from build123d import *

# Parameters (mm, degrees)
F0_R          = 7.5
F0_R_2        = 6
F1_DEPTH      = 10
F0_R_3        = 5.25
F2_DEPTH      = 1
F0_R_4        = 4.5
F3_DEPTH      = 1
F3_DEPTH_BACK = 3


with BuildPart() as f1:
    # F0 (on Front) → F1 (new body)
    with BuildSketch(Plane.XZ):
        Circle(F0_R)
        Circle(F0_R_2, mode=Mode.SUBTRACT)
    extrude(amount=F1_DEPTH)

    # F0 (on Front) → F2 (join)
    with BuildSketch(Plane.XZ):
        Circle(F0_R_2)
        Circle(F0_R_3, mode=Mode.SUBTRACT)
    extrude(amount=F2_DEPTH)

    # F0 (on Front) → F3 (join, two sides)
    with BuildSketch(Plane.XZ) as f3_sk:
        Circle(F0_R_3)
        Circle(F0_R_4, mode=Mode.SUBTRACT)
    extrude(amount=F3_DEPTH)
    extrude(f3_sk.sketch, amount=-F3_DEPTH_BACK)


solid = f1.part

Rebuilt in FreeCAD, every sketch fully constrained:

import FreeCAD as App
import Part
import Sketcher
from FreeCAD import Vector

doc = App.newDocument("Part")
params = doc.addObject("Spreadsheet::Sheet", "Params")
for row, (alias, value) in enumerate([
    ("sketch1_diameter", "15 mm"),
    ("sketch1_diameter2", "12 mm"),
    ("pad1_length", "10 mm"),
    ("sketch2_diameter", "12 mm"),
    ("sketch2_diameter2", "10.5 mm"),
    ("pad2_length", "1 mm"),
    ("sketch3_diameter", "9 mm"),
    ("sketch3_diameter2", "10.5 mm"),
    ("pad3_length", "1 mm"),
    ("pad3_length2", "3 mm"),
], start=1):
    params.set(f"A{row}", alias)
    params.set(f"B{row}", "=" + value)
    params.setAlias(f"B{row}", alias)

body = doc.addObject("PartDesign::Body", "Body")

# Sketch on XZ plane
sketch1 = doc.addObject("Sketcher::SketchObject", "Sketch")
body.addObject(sketch1)
sketch1.AttachmentSupport = (doc.XZ_Plane, [""])
sketch1.MapMode = "FlatFace"
sketch1.addGeometry(Part.Circle(Vector(0, 0, 0), Vector(0, 0, 1), 8), False)
sketch1.addGeometry(Part.Circle(Vector(0, 0, 0), Vector(0, 0, 1), 6), False)
sketch1.addConstraint(Sketcher.Constraint("Coincident", 0, 3, -1, 1))
sketch1.addConstraint(Sketcher.Constraint("Coincident", 1, 3, -1, 1))
sketch1.addConstraint(Sketcher.Constraint("Diameter", 0, 15.0))
sketch1.addConstraint(Sketcher.Constraint("Diameter", 1, 12.0))
sketch1.setExpression("Constraints[2]", "Params.sketch1_diameter")
sketch1.setExpression("Constraints[3]", "Params.sketch1_diameter2")
pad1 = doc.addObject("PartDesign::Pad", "Pad")
body.addObject(pad1)
pad1.Profile = sketch1
pad1.setExpression("Length", "Params.pad1_length")

# Sketch on XZ plane
sketch2 = doc.addObject("Sketcher::SketchObject", "Sketch001")
body.addObject(sketch2)
sketch2.AttachmentSupport = (doc.XZ_Plane, [""])
sketch2.MapMode = "FlatFace"
sketch2.addGeometry(Part.Circle(Vector(0, 0, 0), Vector(0, 0, 1), 6), False)
sketch2.addGeometry(Part.Circle(Vector(0, 0, 0), Vector(0, 0, 1), 5), False)
sketch2.addConstraint(Sketcher.Constraint("Coincident", 0, 3, -1, 1))
sketch2.addConstraint(Sketcher.Constraint("Coincident", 1, 3, -1, 1))
sketch2.addConstraint(Sketcher.Constraint("Diameter", 0, 12.0))
sketch2.addConstraint(Sketcher.Constraint("Diameter", 1, 10.5))
sketch2.setExpression("Constraints[2]", "Params.sketch2_diameter")
sketch2.setExpression("Constraints[3]", "Params.sketch2_diameter2")
pad2 = doc.addObject("PartDesign::Pad", "Pad001")
body.addObject(pad2)
pad2.Profile = sketch2
pad2.setExpression("Length", "Params.pad2_length")

# Sketch on XZ plane
sketch3 = doc.addObject("Sketcher::SketchObject", "Sketch002")
body.addObject(sketch3)
sketch3.AttachmentSupport = (doc.XZ_Plane, [""])
sketch3.MapMode = "FlatFace"
sketch3.addGeometry(Part.Circle(Vector(0, 0, 0), Vector(0, 0, 1), 5.2), False)
sketch3.addGeometry(Part.Circle(Vector(0, 0, 0), Vector(0, 0, 1), 4.5), False)
sketch3.addConstraint(Sketcher.Constraint("Coincident", 0, 3, -1, 1))
sketch3.addConstraint(Sketcher.Constraint("Coincident", 1, 3, -1, 1))
sketch3.addConstraint(Sketcher.Constraint("Diameter", 1, 9.0))
sketch3.addConstraint(Sketcher.Constraint("Diameter", 0, 10.5))
sketch3.setExpression("Constraints[2]", "Params.sketch3_diameter")
sketch3.setExpression("Constraints[3]", "Params.sketch3_diameter2")
pad3 = doc.addObject("PartDesign::Pad", "Pad002")
body.addObject(pad3)
pad3.Profile = sketch3
pad3.Type = "TwoLengths"
pad3.setExpression("Length", "Params.pad3_length")
pad3.setExpression("Length2", "Params.pad3_length2")

doc.recompute()
